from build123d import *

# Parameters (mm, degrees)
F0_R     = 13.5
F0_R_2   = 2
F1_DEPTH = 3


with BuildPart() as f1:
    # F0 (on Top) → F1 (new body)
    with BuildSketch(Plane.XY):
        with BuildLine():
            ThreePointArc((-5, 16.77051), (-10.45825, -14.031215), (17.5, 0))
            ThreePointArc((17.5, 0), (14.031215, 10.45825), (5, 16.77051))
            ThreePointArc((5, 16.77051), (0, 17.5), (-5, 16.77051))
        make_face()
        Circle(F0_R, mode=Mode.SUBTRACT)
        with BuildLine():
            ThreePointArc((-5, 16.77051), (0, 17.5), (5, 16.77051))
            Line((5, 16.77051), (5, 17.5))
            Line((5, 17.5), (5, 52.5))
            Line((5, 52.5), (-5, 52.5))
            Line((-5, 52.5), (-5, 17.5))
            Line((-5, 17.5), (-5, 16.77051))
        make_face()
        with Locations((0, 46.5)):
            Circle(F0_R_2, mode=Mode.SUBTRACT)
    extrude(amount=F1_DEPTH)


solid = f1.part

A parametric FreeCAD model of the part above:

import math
import FreeCAD as App
import Part
import Sketcher

doc = App.newDocument("Part")
params = doc.addObject("Spreadsheet::Sheet", "Params")
for row, (alias, value) in enumerate([
    ("sketch1_diameter", "27 mm"),
    ("sketch1_diameter2", "4 mm"),
    ("sketch1_radius", "17.5 mm"),
    ("sketch1_width", "10 mm"),
    ("pad1_length", "3 mm"),
], start=1):
    params.set(f"A{row}", alias)
    params.set(f"B{row}", "=" + value)
    params.setAlias(f"B{row}", alias)

body = doc.addObject("PartDesign::Body", "Body")

sketch1 = body.newObject("Sketcher::SketchObject", "Sketch")
sketch1.AttachmentSupport = (doc.getObject("XY_Plane"), [""])
sketch1.MapMode = "FlatFace"
sketch1.addGeometry([
    Part.ArcOfCircle(Part.Circle(App.Vector(0, 0, 0), App.Vector(0, 0, 1), 17.5), math.radians(107), math.radians(360)),
    Part.ArcOfCircle(Part.Circle(App.Vector(0, 0, 0), App.Vector(0, 0, 1), 17.5), math.radians(0), math.radians(73)),
    Part.LineSegment(App.Vector(5, 16.8, 0), App.Vector(5, 52.5, 0)),
    Part.LineSegment(App.Vector(5, 52.5, 0), App.Vector(-5, 52.5, 0)),
    Part.LineSegment(App.Vector(-5, 52.5, 0), App.Vector(-5, 16.8, 0)),
    Part.Circle(App.Vector(0, 0, 0), App.Vector(0, 0, 1), 13.5),
    Part.Circle(App.Vector(0, 46.5, 0), App.Vector(0, 0, 1), 2),
], False)
sketch1.addConstraint([
    Sketcher.Constraint("Tangent", 0, 2, 1, 1),
    Sketcher.Constraint("Coincident", 1, 2, 2, 1),
    Sketcher.Constraint("Coincident", 2, 2, 3, 1),
    Sketcher.Constraint("Coincident", 3, 2, 4, 1),
    Sketcher.Constraint("Coincident", 4, 2, 0, 1),
    Sketcher.Constraint("Vertical", 2),
    Sketcher.Constraint("Horizontal", 3),
    Sketcher.Constraint("Vertical", 4),
    Sketcher.Constraint("Coincident", 0, 3, -1, 1),
    Sketcher.Constraint("Coincident", 5, 3, -1, 1),
    Sketcher.Constraint("Equal", 0, 1),
    Sketcher.Constraint("PointOnObject", 6, 3, -2),
    Sketcher.Constraint("PointOnObject", 0, 2, -1),
    Sketcher.Constraint("Horizontal", 1, 2, 4, 2),
    Sketcher.Constraint("Diameter", 5, 27.0),
    Sketcher.Constraint("Diameter", 6, 4.0),
    Sketcher.Constraint("Radius", 0, 17.5),
    Sketcher.Constraint("DistanceX", 3, 2, 3, 1, 10.0),
    Sketcher.Constraint("DistanceY", 6, 3, 2, 2, 6.0),
    Sketcher.Constraint("DistanceY", -1, 1, 6, 3, 46.5),
])
sketch1.setExpression("Constraints[14]", "Params.sketch1_diameter")
sketch1.setExpression("Constraints[15]", "Params.sketch1_diameter2")
sketch1.setExpression("Constraints[16]", "Params.sketch1_radius")
sketch1.setExpression("Constraints[17]", "Params.sketch1_width")
pad1 = body.newObject("PartDesign::Pad", "Pad")
pad1.Profile = sketch1
pad1.setExpression("Length", "Params.pad1_length")

doc.recompute()
